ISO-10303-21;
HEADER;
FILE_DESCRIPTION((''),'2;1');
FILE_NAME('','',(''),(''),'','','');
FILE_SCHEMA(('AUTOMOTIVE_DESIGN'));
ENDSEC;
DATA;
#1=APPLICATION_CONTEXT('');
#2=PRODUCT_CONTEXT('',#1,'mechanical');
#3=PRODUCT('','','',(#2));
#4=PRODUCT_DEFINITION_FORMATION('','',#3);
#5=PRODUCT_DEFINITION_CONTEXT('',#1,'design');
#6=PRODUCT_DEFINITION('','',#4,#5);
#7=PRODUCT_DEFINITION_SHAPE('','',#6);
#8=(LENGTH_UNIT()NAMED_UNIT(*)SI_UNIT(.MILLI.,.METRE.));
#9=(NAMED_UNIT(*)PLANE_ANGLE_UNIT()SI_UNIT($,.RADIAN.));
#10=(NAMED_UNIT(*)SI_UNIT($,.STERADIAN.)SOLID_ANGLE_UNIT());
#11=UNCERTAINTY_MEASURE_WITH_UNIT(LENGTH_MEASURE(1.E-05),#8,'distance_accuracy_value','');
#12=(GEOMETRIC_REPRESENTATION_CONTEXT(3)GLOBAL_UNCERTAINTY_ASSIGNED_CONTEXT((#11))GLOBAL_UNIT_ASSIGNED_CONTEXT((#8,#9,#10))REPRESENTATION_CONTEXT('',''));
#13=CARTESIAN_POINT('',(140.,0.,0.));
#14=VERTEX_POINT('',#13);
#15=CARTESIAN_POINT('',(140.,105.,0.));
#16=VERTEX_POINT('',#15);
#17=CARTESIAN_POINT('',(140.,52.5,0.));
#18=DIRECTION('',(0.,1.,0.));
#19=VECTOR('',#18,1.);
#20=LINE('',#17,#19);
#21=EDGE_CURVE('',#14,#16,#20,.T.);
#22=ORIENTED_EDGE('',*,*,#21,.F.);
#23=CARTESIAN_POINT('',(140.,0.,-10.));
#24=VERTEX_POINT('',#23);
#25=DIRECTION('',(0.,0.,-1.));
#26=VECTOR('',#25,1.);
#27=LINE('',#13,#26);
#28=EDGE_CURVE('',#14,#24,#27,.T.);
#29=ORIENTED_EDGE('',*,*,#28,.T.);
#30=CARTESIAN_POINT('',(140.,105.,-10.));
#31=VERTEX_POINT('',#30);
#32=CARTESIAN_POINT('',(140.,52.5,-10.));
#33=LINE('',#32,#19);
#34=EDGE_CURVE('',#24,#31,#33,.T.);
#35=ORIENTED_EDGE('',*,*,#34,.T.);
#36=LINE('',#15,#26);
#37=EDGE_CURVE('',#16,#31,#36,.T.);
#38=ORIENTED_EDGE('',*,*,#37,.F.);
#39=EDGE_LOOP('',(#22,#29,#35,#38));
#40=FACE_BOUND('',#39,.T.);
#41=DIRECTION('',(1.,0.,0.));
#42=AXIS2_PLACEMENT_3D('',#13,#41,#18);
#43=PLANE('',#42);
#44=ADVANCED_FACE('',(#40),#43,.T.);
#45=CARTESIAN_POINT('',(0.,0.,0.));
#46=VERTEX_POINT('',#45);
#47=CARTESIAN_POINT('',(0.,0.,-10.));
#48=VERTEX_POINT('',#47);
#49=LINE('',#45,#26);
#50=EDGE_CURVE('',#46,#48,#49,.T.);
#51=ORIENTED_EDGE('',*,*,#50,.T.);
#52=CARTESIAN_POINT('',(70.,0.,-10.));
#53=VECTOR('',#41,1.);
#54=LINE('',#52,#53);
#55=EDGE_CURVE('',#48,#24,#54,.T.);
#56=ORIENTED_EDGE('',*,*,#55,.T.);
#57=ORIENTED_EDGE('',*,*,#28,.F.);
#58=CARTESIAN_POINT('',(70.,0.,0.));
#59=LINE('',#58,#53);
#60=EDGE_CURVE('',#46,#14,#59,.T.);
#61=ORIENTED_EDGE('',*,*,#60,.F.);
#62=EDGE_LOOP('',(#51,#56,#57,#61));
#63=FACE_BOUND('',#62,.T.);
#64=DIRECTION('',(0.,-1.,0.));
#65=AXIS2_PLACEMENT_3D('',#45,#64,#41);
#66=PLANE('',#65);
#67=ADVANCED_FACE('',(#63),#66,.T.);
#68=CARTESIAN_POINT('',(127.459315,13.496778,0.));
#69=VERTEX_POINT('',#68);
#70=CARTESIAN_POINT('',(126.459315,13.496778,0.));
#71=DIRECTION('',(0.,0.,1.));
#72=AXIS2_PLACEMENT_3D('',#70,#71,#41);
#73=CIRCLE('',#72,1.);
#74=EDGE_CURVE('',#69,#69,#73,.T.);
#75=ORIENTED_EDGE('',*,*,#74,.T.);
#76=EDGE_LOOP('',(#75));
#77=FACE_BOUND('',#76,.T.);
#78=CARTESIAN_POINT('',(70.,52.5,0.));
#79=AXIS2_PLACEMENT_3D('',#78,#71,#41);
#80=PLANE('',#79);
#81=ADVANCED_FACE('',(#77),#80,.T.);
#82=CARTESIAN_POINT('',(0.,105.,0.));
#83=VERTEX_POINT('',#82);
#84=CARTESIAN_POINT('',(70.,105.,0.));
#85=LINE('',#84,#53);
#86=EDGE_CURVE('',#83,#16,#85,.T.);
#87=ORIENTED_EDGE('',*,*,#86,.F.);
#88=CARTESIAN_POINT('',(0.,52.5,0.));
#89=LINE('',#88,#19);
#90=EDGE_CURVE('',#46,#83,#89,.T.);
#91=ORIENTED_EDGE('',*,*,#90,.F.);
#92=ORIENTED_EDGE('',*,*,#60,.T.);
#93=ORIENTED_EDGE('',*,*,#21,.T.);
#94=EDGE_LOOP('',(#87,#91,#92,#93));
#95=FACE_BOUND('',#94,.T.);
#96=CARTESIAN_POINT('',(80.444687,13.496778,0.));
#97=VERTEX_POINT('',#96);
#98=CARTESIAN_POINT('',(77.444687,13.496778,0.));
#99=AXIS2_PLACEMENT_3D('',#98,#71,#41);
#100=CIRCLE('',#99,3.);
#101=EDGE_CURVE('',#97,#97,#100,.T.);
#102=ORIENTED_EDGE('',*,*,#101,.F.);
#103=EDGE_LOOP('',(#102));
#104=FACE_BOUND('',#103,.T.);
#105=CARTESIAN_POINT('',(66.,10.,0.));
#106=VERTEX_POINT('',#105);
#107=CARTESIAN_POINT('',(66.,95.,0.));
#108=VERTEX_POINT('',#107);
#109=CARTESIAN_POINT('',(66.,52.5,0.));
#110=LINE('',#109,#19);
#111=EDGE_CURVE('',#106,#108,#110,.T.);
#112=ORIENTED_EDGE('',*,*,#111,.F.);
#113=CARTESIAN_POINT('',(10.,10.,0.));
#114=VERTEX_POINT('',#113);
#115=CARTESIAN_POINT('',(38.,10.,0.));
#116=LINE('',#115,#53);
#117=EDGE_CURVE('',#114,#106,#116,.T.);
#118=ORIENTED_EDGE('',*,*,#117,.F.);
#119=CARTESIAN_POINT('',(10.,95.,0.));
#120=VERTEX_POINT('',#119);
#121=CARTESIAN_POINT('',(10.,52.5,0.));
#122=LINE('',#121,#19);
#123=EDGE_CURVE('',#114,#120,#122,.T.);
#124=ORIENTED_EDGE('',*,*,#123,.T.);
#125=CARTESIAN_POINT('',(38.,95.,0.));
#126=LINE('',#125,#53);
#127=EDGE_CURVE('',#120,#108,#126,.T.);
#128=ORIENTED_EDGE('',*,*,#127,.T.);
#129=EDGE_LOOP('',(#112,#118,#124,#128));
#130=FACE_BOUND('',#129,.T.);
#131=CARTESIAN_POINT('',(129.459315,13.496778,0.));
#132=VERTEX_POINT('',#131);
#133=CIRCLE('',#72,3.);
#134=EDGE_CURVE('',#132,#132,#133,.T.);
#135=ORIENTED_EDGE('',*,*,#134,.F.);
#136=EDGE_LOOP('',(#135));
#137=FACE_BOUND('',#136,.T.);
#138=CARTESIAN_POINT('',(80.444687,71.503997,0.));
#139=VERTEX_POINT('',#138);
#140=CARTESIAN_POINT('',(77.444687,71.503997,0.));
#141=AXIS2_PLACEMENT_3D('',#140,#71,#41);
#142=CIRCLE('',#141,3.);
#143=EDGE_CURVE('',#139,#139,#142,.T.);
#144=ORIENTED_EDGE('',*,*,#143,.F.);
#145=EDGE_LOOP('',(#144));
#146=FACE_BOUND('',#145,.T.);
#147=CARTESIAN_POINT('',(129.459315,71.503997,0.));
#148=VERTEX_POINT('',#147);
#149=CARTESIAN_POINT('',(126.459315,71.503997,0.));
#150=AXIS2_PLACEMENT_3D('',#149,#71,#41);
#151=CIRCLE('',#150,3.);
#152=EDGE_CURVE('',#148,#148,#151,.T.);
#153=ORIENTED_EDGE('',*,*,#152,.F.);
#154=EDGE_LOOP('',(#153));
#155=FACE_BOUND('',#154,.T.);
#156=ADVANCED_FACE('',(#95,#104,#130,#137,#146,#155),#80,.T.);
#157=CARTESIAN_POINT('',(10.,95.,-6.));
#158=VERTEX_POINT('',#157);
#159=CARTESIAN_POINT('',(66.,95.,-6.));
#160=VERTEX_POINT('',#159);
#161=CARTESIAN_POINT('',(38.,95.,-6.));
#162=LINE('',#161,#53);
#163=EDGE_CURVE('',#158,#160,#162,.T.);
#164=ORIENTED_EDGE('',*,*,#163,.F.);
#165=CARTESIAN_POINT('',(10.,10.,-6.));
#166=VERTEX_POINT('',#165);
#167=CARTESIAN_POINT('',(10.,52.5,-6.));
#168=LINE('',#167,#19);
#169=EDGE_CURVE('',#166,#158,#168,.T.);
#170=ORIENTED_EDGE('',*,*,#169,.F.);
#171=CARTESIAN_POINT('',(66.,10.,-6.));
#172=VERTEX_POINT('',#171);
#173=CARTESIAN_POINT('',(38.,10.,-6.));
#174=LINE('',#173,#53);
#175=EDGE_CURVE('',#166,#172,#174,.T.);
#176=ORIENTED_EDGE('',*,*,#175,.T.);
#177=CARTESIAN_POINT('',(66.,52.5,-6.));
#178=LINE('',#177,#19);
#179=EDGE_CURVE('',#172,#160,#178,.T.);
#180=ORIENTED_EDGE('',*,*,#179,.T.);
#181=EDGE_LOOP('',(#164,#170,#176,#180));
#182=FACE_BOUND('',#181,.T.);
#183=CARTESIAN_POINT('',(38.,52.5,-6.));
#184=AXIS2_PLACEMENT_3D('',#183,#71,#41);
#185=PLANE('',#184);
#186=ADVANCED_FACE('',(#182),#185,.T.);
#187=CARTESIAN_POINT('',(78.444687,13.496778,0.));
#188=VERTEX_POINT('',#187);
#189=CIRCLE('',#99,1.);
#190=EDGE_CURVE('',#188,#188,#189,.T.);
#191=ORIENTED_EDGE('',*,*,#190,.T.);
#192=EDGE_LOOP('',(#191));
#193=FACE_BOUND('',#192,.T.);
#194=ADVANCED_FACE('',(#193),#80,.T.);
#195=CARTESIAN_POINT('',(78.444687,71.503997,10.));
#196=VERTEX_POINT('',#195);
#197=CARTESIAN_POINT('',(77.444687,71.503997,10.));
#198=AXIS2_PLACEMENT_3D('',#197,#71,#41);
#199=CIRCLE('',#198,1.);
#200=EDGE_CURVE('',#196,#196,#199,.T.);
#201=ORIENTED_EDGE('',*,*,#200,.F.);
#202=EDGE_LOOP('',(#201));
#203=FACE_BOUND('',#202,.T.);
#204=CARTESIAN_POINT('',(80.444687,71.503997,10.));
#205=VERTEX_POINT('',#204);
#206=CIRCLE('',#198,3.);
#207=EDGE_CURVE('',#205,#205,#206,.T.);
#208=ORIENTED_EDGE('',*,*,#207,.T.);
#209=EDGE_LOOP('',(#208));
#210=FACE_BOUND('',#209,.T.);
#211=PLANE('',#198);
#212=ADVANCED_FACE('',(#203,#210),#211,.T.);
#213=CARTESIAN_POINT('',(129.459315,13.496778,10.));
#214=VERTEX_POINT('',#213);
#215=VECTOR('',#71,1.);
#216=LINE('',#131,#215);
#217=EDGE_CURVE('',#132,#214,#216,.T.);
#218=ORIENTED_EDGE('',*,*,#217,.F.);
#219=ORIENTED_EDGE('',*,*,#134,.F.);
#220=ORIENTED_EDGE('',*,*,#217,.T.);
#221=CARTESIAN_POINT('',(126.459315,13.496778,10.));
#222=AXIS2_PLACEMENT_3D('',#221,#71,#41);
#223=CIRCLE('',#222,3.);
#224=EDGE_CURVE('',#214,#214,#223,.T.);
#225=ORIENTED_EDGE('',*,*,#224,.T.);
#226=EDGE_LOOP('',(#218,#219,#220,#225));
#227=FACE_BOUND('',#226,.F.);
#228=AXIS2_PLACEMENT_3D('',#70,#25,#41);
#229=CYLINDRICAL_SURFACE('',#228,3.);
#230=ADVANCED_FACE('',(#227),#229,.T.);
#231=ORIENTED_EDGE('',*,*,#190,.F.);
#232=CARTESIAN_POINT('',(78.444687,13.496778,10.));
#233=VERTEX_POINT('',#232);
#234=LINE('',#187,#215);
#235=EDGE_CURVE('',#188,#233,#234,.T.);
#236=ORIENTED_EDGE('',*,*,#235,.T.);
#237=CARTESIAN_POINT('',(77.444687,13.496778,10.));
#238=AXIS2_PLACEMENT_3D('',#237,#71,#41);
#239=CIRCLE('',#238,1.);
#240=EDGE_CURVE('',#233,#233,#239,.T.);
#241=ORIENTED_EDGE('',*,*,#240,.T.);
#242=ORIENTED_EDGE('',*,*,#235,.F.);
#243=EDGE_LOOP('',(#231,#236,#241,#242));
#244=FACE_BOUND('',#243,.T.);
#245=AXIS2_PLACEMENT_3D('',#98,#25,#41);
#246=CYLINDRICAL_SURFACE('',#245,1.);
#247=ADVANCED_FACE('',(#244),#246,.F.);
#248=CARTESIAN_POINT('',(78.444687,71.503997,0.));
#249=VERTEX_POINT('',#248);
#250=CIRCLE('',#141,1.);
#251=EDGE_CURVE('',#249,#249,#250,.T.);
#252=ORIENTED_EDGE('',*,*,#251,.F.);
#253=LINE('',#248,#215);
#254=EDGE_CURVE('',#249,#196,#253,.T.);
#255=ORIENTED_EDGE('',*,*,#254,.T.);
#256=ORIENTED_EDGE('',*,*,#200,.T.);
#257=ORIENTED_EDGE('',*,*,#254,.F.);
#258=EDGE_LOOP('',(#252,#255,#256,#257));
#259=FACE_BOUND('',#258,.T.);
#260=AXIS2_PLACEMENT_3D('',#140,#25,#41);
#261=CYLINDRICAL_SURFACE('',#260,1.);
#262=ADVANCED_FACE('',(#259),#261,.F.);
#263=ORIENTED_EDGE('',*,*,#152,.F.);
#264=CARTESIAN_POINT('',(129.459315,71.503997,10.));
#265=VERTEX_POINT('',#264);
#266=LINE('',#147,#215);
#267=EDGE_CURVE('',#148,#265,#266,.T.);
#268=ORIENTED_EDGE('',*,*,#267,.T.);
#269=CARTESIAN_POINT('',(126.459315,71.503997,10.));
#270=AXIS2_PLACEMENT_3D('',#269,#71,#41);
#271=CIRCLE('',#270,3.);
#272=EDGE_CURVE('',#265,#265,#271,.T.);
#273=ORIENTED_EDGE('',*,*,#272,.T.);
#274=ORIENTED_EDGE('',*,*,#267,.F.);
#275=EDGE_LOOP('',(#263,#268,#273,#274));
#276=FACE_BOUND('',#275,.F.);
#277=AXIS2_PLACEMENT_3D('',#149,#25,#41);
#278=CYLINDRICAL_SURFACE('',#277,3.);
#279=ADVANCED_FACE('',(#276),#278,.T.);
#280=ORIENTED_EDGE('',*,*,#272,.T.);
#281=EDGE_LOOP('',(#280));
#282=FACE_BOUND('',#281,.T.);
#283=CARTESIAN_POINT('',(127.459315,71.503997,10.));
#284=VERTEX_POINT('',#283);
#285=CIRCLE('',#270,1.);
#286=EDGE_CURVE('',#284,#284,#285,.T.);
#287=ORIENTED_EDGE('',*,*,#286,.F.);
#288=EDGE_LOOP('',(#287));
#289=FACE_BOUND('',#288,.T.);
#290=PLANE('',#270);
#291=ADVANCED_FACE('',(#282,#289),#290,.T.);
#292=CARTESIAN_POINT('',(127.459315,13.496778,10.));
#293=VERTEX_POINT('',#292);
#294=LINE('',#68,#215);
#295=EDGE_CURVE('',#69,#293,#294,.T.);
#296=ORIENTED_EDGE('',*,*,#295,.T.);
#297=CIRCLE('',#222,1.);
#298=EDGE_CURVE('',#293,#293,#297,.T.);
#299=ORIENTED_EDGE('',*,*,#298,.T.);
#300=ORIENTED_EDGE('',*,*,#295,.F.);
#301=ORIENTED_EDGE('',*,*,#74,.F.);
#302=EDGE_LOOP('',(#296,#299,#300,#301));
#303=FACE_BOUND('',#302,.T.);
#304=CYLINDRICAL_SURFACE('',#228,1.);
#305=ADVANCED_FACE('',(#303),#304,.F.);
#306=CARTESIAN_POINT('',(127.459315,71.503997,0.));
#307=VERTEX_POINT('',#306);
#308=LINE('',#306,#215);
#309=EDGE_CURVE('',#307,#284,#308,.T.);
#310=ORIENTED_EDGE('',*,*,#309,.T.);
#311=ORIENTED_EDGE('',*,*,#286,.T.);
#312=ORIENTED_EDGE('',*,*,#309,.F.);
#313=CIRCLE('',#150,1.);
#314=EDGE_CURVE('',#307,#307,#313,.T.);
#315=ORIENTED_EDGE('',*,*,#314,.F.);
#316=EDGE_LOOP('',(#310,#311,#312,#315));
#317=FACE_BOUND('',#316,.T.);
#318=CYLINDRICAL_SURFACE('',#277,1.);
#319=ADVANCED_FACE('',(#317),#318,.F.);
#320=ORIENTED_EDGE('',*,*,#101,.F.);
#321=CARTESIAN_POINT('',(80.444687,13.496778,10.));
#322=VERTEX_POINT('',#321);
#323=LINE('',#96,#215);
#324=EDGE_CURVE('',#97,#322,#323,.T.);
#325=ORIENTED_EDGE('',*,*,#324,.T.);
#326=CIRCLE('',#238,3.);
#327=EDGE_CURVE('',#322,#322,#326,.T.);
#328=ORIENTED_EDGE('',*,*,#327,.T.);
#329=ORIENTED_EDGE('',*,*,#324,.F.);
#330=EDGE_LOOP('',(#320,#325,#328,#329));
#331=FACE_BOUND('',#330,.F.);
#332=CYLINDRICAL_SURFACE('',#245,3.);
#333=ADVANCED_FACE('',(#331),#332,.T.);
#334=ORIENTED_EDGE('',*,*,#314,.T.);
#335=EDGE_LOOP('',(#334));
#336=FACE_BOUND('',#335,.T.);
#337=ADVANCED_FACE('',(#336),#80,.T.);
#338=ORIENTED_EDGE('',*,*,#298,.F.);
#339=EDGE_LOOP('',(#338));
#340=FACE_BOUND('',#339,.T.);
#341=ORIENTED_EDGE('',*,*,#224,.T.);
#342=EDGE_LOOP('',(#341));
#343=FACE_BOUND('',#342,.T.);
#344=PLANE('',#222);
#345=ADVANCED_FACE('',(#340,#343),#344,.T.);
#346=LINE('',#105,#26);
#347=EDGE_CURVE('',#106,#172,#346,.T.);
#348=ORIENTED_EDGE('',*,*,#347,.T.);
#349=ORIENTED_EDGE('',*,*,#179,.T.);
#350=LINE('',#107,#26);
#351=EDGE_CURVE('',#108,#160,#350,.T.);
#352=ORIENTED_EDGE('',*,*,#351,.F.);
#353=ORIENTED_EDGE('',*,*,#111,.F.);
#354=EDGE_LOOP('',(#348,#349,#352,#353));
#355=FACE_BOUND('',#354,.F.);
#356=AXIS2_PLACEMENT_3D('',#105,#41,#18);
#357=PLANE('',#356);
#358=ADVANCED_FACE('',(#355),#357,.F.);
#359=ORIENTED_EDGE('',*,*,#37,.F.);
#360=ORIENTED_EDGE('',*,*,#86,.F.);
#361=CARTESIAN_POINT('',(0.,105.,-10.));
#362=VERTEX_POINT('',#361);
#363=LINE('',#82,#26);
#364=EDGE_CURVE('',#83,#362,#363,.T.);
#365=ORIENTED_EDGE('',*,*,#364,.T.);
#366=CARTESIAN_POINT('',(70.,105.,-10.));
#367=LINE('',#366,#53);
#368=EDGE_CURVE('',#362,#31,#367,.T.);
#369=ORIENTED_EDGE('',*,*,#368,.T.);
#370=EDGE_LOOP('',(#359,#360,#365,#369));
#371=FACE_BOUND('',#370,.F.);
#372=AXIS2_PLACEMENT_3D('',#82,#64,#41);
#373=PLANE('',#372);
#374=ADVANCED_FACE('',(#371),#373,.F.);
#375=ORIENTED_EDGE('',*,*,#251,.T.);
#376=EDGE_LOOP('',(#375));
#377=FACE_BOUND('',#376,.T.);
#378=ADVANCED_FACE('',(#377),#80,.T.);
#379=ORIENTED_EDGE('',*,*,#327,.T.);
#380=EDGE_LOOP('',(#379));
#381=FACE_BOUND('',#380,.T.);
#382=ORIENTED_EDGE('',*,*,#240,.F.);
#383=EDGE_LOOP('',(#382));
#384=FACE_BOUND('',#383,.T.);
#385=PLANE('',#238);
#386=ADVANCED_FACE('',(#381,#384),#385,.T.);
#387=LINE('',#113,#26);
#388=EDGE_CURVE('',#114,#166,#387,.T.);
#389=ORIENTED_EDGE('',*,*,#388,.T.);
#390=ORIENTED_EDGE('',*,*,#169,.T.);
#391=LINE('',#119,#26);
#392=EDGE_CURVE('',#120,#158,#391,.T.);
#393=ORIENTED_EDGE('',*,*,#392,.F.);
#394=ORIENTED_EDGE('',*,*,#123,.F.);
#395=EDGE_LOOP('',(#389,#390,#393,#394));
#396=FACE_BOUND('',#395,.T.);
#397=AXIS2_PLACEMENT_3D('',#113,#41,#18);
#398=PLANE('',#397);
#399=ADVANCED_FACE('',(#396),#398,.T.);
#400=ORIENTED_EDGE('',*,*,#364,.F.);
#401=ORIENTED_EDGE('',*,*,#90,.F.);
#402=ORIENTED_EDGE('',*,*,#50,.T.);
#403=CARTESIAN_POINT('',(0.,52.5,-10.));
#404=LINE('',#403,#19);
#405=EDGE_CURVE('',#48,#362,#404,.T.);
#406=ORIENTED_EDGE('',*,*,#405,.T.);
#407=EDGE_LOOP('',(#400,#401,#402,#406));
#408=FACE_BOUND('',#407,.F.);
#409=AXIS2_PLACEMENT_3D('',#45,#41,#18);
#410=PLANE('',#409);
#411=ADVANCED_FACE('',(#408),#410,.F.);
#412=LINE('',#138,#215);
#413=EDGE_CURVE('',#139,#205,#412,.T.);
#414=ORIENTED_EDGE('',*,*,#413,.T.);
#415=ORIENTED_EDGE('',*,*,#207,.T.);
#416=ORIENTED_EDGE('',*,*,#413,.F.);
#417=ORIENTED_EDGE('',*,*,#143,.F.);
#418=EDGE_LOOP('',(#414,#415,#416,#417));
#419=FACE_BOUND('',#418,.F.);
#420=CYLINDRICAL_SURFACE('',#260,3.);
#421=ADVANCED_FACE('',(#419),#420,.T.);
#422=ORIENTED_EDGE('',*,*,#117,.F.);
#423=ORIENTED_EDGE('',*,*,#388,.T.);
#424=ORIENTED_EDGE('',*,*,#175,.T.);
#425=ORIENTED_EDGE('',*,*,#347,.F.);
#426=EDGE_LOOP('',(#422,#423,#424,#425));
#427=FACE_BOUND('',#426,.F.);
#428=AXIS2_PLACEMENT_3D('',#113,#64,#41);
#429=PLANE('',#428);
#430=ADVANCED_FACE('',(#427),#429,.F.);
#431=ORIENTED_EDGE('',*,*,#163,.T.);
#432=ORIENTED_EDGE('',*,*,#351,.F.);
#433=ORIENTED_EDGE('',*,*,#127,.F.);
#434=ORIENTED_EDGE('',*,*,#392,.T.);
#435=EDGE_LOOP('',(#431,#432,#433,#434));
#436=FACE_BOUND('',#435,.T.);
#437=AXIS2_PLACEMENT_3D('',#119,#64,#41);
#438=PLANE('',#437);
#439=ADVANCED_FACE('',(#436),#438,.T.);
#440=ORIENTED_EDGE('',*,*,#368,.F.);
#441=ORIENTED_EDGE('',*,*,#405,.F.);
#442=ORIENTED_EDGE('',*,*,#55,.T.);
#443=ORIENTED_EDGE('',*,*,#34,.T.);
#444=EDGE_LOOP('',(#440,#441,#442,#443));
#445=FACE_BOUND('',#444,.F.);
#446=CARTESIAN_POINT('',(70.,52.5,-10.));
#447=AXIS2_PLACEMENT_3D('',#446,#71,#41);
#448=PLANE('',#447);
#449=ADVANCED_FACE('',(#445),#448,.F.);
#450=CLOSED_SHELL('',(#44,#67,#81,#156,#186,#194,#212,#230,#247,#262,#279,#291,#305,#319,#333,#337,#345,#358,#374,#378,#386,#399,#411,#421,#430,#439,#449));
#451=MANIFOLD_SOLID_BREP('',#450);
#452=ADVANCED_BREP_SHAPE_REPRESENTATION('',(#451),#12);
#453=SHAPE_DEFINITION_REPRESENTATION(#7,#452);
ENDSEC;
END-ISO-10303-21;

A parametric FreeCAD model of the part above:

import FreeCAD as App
import Part
import Sketcher
from FreeCAD import Vector
Q = App.Units.Quantity

doc = App.newDocument("Part")
body = doc.addObject("PartDesign::Body", "Body")

sketch1 = body.newObject("Sketcher::SketchObject", "Sketch")
sketch1.AttachmentSupport = (doc.getObject("XY_Plane"), [""])
sketch1.MapMode = "FlatFace"
sketch1.addGeometry([
    Part.LineSegment(Vector(0, 105, 0), Vector(0, 0, 0)),
    Part.LineSegment(Vector(0, 0, 0), Vector(140, 0, 0)),
    Part.LineSegment(Vector(140, 0, 0), Vector(140, 105, 0)),
    Part.LineSegment(Vector(140, 105, 0), Vector(0, 105, 0)),
], False)
sketch1.addConstraint([
    Sketcher.Constraint("Coincident", 0, 2, 1, 1),
    Sketcher.Constraint("Coincident", 1, 2, 2, 1),
    Sketcher.Constraint("Coincident", 2, 2, 3, 1),
    Sketcher.Constraint("Coincident", 3, 2, 0, 1),
    Sketcher.Constraint("Vertical", 0),
    Sketcher.Constraint("Horizontal", 1),
    Sketcher.Constraint("Vertical", 2),
    Sketcher.Constraint("Horizontal", 3),
    Sketcher.Constraint("Coincident", 0, 2, -1, 1),
    Sketcher.Constraint("DistanceX", 1, 1, 1, 2, Q("140 mm")),
    Sketcher.Constraint("DistanceY", 0, 2, 0, 1, Q("105 mm")),
])
pad1 = body.newObject("PartDesign::Pad", "Pad")
pad1.Profile = sketch1
pad1.Length = 10
pad1.Reversed = True

sketch2 = body.newObject("Sketcher::SketchObject", "Sketch001")
sketch2.AttachmentSupport = (doc.getObject("XY_Plane"), [""])
sketch2.MapMode = "FlatFace"
sketch2.addGeometry([
    Part.Circle(Vector(77.4, 71.5, 0), Vector(0, 0, 1), 3),
    Part.Circle(Vector(77.4, 71.5, 0), Vector(0, 0, 1), 1),
    Part.Circle(Vector(126.5, 71.5, 0), Vector(0, 0, 1), 3),
    Part.Circle(Vector(126.5, 71.5, 0), Vector(0, 0, 1), 1),
    Part.Circle(Vector(126.5, 13.5, 0), Vector(0, 0, 1), 3),
    Part.Circle(Vector(126.5, 13.5, 0), Vector(0, 0, 1), 1),
    Part.Circle(Vector(77.4, 13.5, 0), Vector(0, 0, 1), 3),
    Part.Circle(Vector(77.4, 13.5, 0), Vector(0, 0, 1), 1),
], False)
sketch2.addConstraint([
    Sketcher.Constraint("Coincident", 1, 3, 0, 3),
    Sketcher.Constraint("Coincident", 3, 3, 2, 3),
    Sketcher.Constraint("Coincident", 5, 3, 4, 3),
    Sketcher.Constraint("Coincident", 7, 3, 6, 3),
    Sketcher.Constraint("Equal", 0, 2),
    Sketcher.Constraint("Equal", 1, 3),
    Sketcher.Constraint("Equal", 2, 4),
    Sketcher.Constraint("Equal", 3, 5),
    Sketcher.Constraint("Equal", 4, 6),
    Sketcher.Constraint("Equal", 5, 7),
    Sketcher.Constraint("Horizontal", 1, 3, 2, 3),
    Sketcher.Constraint("Horizontal", 5, 3, 6, 3),
    Sketcher.Constraint("Vertical", 3, 3, 4, 3),
    Sketcher.Constraint("Vertical", 1, 3, 6, 3),
    Sketcher.Constraint("Diameter", 0, Q("6 mm")),
    Sketcher.Constraint("Diameter", 1, Q("2 mm")),
    Sketcher.Constraint("DistanceY", -1, 1, 4, 3, Q("13.496778 mm")),
    Sketcher.Constraint("DistanceX", 0, 3, 2, 3, Q("49.014628 mm")),
    Sketcher.Constraint("DistanceY", 4, 3, 2, 3, Q("58.007219 mm")),
    Sketcher.Constraint("DistanceX", -1, 1, 0, 3, Q("77.444687 mm")),
])
pad2 = body.newObject("PartDesign::Pad", "Pad001")
pad2.Profile = sketch2
pad2.Length = 10

sketch3 = body.newObject("Sketcher::SketchObject", "Sketch002")
sketch3.AttachmentSupport = (doc.getObject("XY_Plane"), [""])
sketch3.MapMode = "FlatFace"
sketch3.addGeometry([
    Part.LineSegment(Vector(10, 95, 0), Vector(10, 10, 0)),
    Part.LineSegment(Vector(10, 10, 0), Vector(66, 10, 0)),
    Part.LineSegment(Vector(66, 10, 0), Vector(66, 95, 0)),
    Part.LineSegment(Vector(66, 95, 0), Vector(10, 95, 0)),
], False)
sketch3.addConstraint([
    Sketcher.Constraint("Coincident", 0, 2, 1, 1),
    Sketcher.Constraint("Coincident", 1, 2, 2, 1),
    Sketcher.Constraint("Coincident", 2, 2, 3, 1),
    Sketcher.Constraint("Coincident", 3, 2, 0, 1),
    Sketcher.Constraint("Vertical", 0),
    Sketcher.Constraint("Horizontal", 1),
    Sketcher.Constraint("Vertical", 2),
    Sketcher.Constraint("Horizontal", 3),
    Sketcher.Constraint("DistanceX", 1, 1, 1, 2, Q("56 mm")),
    Sketcher.Constraint("DistanceY", 0, 2, 0, 1, Q("85 mm")),
    Sketcher.Constraint("DistanceX", -1, 1, 0, 2, Q("10 mm")),
    Sketcher.Constraint("DistanceY", -1, 1, 0, 2, Q("10 mm")),
])
pocket1 = body.newObject("PartDesign::Pocket", "Pocket")
pocket1.Profile = sketch3
pocket1.Length = 6

doc.recompute()
